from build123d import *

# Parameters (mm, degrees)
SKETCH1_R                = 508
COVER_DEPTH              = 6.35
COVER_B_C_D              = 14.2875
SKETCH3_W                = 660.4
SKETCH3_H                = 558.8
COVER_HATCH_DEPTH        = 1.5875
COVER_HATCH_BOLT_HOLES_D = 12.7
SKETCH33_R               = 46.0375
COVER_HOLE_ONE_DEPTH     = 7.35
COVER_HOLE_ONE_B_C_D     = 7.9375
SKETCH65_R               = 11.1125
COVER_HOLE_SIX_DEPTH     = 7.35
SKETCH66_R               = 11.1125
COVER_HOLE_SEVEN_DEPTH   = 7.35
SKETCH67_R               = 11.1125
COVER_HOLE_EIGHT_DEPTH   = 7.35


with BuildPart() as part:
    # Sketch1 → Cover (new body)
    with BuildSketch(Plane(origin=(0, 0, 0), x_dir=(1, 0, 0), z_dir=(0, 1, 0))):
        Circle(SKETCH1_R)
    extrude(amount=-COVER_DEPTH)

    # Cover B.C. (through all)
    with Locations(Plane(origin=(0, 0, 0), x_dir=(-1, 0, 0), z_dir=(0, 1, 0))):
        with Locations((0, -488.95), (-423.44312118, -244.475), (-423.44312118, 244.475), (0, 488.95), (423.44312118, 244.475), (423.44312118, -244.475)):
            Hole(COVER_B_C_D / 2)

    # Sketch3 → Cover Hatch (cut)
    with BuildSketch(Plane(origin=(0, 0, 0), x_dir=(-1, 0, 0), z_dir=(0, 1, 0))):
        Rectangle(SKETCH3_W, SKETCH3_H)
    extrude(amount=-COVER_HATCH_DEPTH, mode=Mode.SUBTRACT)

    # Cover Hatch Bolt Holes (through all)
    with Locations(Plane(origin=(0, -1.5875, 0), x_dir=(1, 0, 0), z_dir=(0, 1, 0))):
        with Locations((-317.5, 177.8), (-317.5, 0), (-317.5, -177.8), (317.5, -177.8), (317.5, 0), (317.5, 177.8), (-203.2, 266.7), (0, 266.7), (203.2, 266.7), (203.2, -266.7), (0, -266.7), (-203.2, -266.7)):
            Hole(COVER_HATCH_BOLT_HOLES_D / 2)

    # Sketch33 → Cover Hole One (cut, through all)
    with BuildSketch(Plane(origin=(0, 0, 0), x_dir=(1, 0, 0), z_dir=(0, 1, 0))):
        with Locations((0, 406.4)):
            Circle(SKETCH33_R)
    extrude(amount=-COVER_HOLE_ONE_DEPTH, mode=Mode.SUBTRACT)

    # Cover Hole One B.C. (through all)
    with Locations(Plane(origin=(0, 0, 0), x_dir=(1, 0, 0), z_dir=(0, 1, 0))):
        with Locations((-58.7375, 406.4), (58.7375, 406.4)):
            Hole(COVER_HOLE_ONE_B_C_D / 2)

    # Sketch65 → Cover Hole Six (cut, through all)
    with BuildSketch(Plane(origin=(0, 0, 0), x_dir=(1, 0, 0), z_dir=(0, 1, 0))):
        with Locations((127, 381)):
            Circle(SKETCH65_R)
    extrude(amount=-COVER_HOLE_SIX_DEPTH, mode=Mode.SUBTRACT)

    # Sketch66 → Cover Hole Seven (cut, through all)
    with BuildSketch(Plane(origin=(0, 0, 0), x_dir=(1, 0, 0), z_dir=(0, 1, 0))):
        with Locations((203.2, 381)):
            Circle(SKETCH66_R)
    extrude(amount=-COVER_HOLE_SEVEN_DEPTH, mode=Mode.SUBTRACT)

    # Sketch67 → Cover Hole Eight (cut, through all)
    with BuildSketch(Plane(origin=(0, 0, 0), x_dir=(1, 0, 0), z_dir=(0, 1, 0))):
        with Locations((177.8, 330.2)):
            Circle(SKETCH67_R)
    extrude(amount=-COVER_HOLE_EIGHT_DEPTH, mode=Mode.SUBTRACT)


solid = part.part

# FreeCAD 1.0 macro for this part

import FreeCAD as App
import Part
import Sketcher

V = App.Vector
Q = App.Units.Quantity

doc = App.newDocument("Part")
body = doc.addObject("PartDesign::Body", "Body")

# Sketch on XZ plane
sketch1 = body.newObject("Sketcher::SketchObject", "Sketch")
sketch1.AttachmentSupport = (doc.getObject("XZ_Plane"), [""])
sketch1.MapMode = "FlatFace"
sketch1.addGeometry(Part.Circle(V(0, 0, 0), V(0, 0, 1), 508), False)
sketch1.addConstraint(Sketcher.Constraint("Coincident", 0, 3, -1, 1))
sketch1.addConstraint(Sketcher.Constraint("Diameter", 0, Q("40 in")))
pad1 = body.newObject("PartDesign::Pad", "Pad")
pad1.Profile = sketch1
pad1.Length = Q("0.25 in")

# Sketch on XZ plane
sketch2 = body.newObject("Sketcher::SketchObject", "Sketch001")
sketch2.AttachmentSupport = (doc.getObject("XZ_Plane"), [""])
sketch2.MapMode = "FlatFace"
sketch2.addGeometry(Part.Circle(V(0, -489, 0), V(0, 0, 1), 7), False)
sketch2.addGeometry(Part.Circle(V(423, -244, 0), V(0, 0, 1), 7), False)
sketch2.addGeometry(Part.Circle(V(423, 244, 0), V(0, 0, 1), 7), False)
sketch2.addGeometry(Part.Circle(V(0, 489, 0), V(0, 0, 1), 7), False)
sketch2.addGeometry(Part.Circle(V(-423, 244, 0), V(0, 0, 1), 7), False)
sketch2.addGeometry(Part.Circle(V(-423, -244, 0), V(0, 0, 1), 7), False)
sketch2.addConstraint(Sketcher.Constraint("Equal", 0, 1))
sketch2.addConstraint(Sketcher.Constraint("Equal", 1, 2))
sketch2.addConstraint(Sketcher.Constraint("Equal", 2, 3))
sketch2.addConstraint(Sketcher.Constraint("Equal", 3, 4))
sketch2.addConstraint(Sketcher.Constraint("Equal", 4, 5))
sketch2.addConstraint(Sketcher.Constraint("Symmetric", 0, 3, 3, 3, -1, 1))
sketch2.addConstraint(Sketcher.Constraint("Symmetric", 1, 3, 4, 3, -1, 1))
sketch2.addConstraint(Sketcher.Constraint("Symmetric", 2, 3, 5, 3, -1, 1))
sketch2.addConstraint(Sketcher.Constraint("Symmetric", 2, 3, 4, 3, -2))
sketch2.addConstraint(Sketcher.Constraint("PointOnObject", 0, 3, -2))
sketch2.addConstraint(Sketcher.Constraint("Diameter", 0, Q("0.5625 in")))
sketch2.addConstraint(Sketcher.Constraint("DistanceY", 0, 3, 3, 3, Q("38.5 in")))
sketch2.addConstraint(Sketcher.Constraint("DistanceY", 1, 3, 2, 3, Q("19.25 in")))
sketch2.addConstraint(Sketcher.Constraint("DistanceX", -1, 1, 1, 3, Q("423.443121 mm")))
doc.recompute()
hole = body.newObject("PartDesign::Hole", "Hole")
hole.Profile = sketch2
hole.ThreadType = "None"
hole.Diameter = Q("0.5625 in")
hole.DepthType = "ThroughAll"
hole.Reversed = True

# Sketch on XZ plane
sketch3 = body.newObject("Sketcher::SketchObject", "Sketch002")
sketch3.AttachmentSupport = (doc.getObject("XZ_Plane"), [""])
sketch3.MapMode = "FlatFace"
sketch3.addGeometry(Part.LineSegment(V(330, 279, 0), V(330, -279, 0)), False)
sketch3.addGeometry(Part.LineSegment(V(330, -279, 0), V(-330, -279, 0)), False)
sketch3.addGeometry(Part.LineSegment(V(-330, -279, 0), V(-330, 279, 0)), False)
sketch3.addGeometry(Part.LineSegment(V(-330, 279, 0), V(330, 279, 0)), False)
sketch3.addConstraint(Sketcher.Constraint("Coincident", 0, 2, 1, 1))
sketch3.addConstraint(Sketcher.Constraint("Coincident", 1, 2, 2, 1))
sketch3.addConstraint(Sketcher.Constraint("Coincident", 2, 2, 3, 1))
sketch3.addConstraint(Sketcher.Constraint("Coincident", 3, 2, 0, 1))
sketch3.addConstraint(Sketcher.Constraint("Vertical", 0))
sketch3.addConstraint(Sketcher.Constraint("Horizontal", 1))
sketch3.addConstraint(Sketcher.Constraint("Vertical", 2))
sketch3.addConstraint(Sketcher.Constraint("Horizontal", 3))
sketch3.addConstraint(Sketcher.Constraint("Symmetric", 0, 2, 2, 2, -1, 1))
sketch3.addConstraint(Sketcher.Constraint("DistanceX", 1, 2, 1, 1, Q("26 in")))
sketch3.addConstraint(Sketcher.Constraint("DistanceY", 0, 2, 0, 1, Q("22 in")))
pocket1 = body.newObject("PartDesign::Pocket", "Pocket")
pocket1.Profile = sketch3
pocket1.Length = Q("0.0625 in")
pocket1.Reversed = True

# Sketch on XZ plane
sketch4 = body.newObject("Sketcher::SketchObject", "Sketch003")
sketch4.AttachmentSupport = (doc.getObject("XZ_Plane"), [""])
sketch4.MapMode = "FlatFace"
sketch4.AttachmentOffset = App.Placement(V(0, 0, 0.0625 * 25.4), App.Rotation())
sketch4.addGeometry(Part.Circle(V(-318, -178, 0), V(0, 0, 1), 6), False)
sketch4.addGeometry(Part.Circle(V(-318, 0, 0), V(0, 0, 1), 6), False)
sketch4.addGeometry(Part.Circle(V(-318, 178, 0), V(0, 0, 1), 6), False)
sketch4.addGeometry(Part.Circle(V(318, 178, 0), V(0, 0, 1), 6), False)
sketch4.addGeometry(Part.Circle(V(318, 0, 0), V(0, 0, 1), 6), False)
sketch4.addGeometry(Part.Circle(V(318, -178, 0), V(0, 0, 1), 6), False)
sketch4.addGeometry(Part.Circle(V(-203, -267, 0), V(0, 0, 1), 6), False)
sketch4.addGeometry(Part.Circle(V(0, -267, 0), V(0, 0, 1), 6), False)
sketch4.addGeometry(Part.Circle(V(203, -267, 0), V(0, 0, 1), 6), False)
sketch4.addGeometry(Part.Circle(V(203, 267, 0), V(0, 0, 1), 6), False)
sketch4.addGeometry(Part.Circle(V(0, 267, 0), V(0, 0, 1), 6), False)
sketch4.addGeometry(Part.Circle(V(-203, 267, 0), V(0, 0, 1), 6), False)
sketch4.addConstraint(Sketcher.Constraint("Equal", 0, 1))
sketch4.addConstraint(Sketcher.Constraint("Equal", 1, 2))
sketch4.addConstraint(Sketcher.Constraint("Equal", 2, 3))
sketch4.addConstraint(Sketcher.Constraint("Equal", 3, 4))
sketch4.addConstraint(Sketcher.Constraint("Equal", 4, 5))
sketch4.addConstraint(Sketcher.Constraint("Equal", 5, 6))
sketch4.addConstraint(Sketcher.Constraint("Equal", 6, 7))
sketch4.addConstraint(Sketcher.Constraint("Equal", 7, 8))
sketch4.addConstraint(Sketcher.Constraint("Equal", 8, 9))
sketch4.addConstraint(Sketcher.Constraint("Equal", 9, 10))
sketch4.addConstraint(Sketcher.Constraint("Equal", 10, 11))
sketch4.addConstraint(Sketcher.Constraint("Symmetric", 0, 3, 3, 3, -1, 1))
sketch4.addConstraint(Sketcher.Constraint("Symmetric", 1, 3, 4, 3, -1, 1))
sketch4.addConstraint(Sketcher.Constraint("Symmetric", 2, 3, 5, 3, -1, 1))
sketch4.addConstraint(Sketcher.Constraint("Symmetric", 6, 3, 9, 3, -1, 1))
sketch4.addConstraint(Sketcher.Constraint("Symmetric", 7, 3, 10, 3, -1, 1))
sketch4.addConstraint(Sketcher.Constraint("Symmetric", 8, 3, 11, 3, -1, 1))
sketch4.addConstraint(Sketcher.Constraint("Symmetric", 2, 3, 3, 3, -2))
sketch4.addConstraint(Sketcher.Constraint("Symmetric", 6, 3, 8, 3, -2))
sketch4.addConstraint(Sketcher.Constraint("PointOnObject", 1, 3, -1))
sketch4.addConstraint(Sketcher.Constraint("PointOnObject", 7, 3, -2))
sketch4.addConstraint(Sketcher.Constraint("Horizontal", 6, 3, 7, 3))
sketch4.addConstraint(Sketcher.Constraint("Vertical", 0, 3, 1, 3))
sketch4.addConstraint(Sketcher.Constraint("Diameter", 0, Q("0.5 in")))
sketch4.addConstraint(Sketcher.Constraint("DistanceY", 0, 3, -1, 1, Q("7 in")))
sketch4.addConstraint(Sketcher.Constraint("DistanceX", 6, 3, -1, 1, Q("8 in")))
sketch4.addConstraint(Sketcher.Constraint("DistanceX", 2, 3, 3, 3, Q("25 in")))
sketch4.addConstraint(Sketcher.Constraint("DistanceY", 8, 3, 9, 3, Q("21 in")))
doc.recompute()
hole2 = body.newObject("PartDesign::Hole", "Hole001")
hole2.Profile = sketch4
hole2.ThreadType = "None"
hole2.Diameter = Q("0.5 in")
hole2.DepthType = "ThroughAll"
hole2.Reversed = True

# Sketch on XZ plane
sketch5 = body.newObject("Sketcher::SketchObject", "Sketch004")
sketch5.AttachmentSupport = (doc.getObject("XZ_Plane"), [""])
sketch5.MapMode = "FlatFace"
sketch5.addGeometry(Part.Circle(V(0, -406, 0), V(0, 0, 1), 46), False)
sketch5.addConstraint(Sketcher.Constraint("PointOnObject", 0, 3, -2))
sketch5.addConstraint(Sketcher.Constraint("Diameter", 0, Q("3.625 in")))
sketch5.addConstraint(Sketcher.Constraint("DistanceY", 0, 3, -1, 1, Q("16 in")))
pocket2 = body.newObject("PartDesign::Pocket", "Pocket001")
pocket2.Profile = sketch5
pocket2.Type = "ThroughAll"
pocket2.Reversed = True

# Sketch on XZ plane
sketch6 = body.newObject("Sketcher::SketchObject", "Sketch005")
sketch6.AttachmentSupport = (doc.getObject("XZ_Plane"), [""])
sketch6.MapMode = "FlatFace"
sketch6.addGeometry(Part.Circle(V(-58.7, -406.4, 0), V(0, 0, 1), 4), False)
sketch6.addGeometry(Part.Circle(V(58.7, -406.4, 0), V(0, 0, 1), 4), False)
sketch6.addConstraint(Sketcher.Constraint("Equal", 0, 1))
sketch6.addConstraint(Sketcher.Constraint("Symmetric", 0, 3, 1, 3, -2))
sketch6.addConstraint(Sketcher.Constraint("Diameter", 0, Q("0.3125 in")))
sketch6.addConstraint(Sketcher.Constraint("DistanceY", 0, 3, -1, 1, Q("16 in")))
sketch6.addConstraint(Sketcher.Constraint("DistanceX", 0, 3, -1, 1, Q("2.3125 in")))
doc.recompute()
hole3 = body.newObject("PartDesign::Hole", "Hole002")
hole3.Profile = sketch6
hole3.ThreadType = "None"
hole3.Diameter = Q("0.3125 in")
hole3.DepthType = "ThroughAll"
hole3.Reversed = True

# Sketch on XZ plane
sketch7 = body.newObject("Sketcher::SketchObject", "Sketch006")
sketch7.AttachmentSupport = (doc.getObject("XZ_Plane"), [""])
sketch7.MapMode = "FlatFace"
sketch7.addGeometry(Part.Circle(V(127, -381, 0), V(0, 0, 1), 11), False)
sketch7.addConstraint(Sketcher.Constraint("Diameter", 0, Q("0.875 in")))
sketch7.addConstraint(Sketcher.Constraint("DistanceX", -1, 1, 0, 3, Q("5 in")))
sketch7.addConstraint(Sketcher.Constraint("DistanceY", 0, 3, -1, 1, Q("15 in")))
pocket3 = body.newObject("PartDesign::Pocket", "Pocket002")
pocket3.Profile = sketch7
pocket3.Type = "ThroughAll"
pocket3.Reversed = True

# Sketch on XZ plane
sketch8 = body.newObject("Sketcher::SketchObject", "Sketch007")
sketch8.AttachmentSupport = (doc.getObject("XZ_Plane"), [""])
sketch8.MapMode = "FlatFace"
sketch8.addGeometry(Part.Circle(V(203, -381, 0), V(0, 0, 1), 11), False)
sketch8.addConstraint(Sketcher.Constraint("Diameter", 0, Q("0.875 in")))
sketch8.addConstraint(Sketcher.Constraint("DistanceX", -1, 1, 0, 3, Q("8 in")))
sketch8.addConstraint(Sketcher.Constraint("DistanceY", 0, 3, -1, 1, Q("15 in")))
pocket4 = body.newObject("PartDesign::Pocket", "Pocket003")
pocket4.Profile = sketch8
pocket4.Type = "ThroughAll"
pocket4.Reversed = True

# Sketch on XZ plane
sketch9 = body.newObject("Sketcher::SketchObject", "Sketch008")
sketch9.AttachmentSupport = (doc.getObject("XZ_Plane"), [""])
sketch9.MapMode = "FlatFace"
sketch9.addGeometry(Part.Circle(V(178, -330, 0), V(0, 0, 1), 11), False)
sketch9.addConstraint(Sketcher.Constraint("Diameter", 0, Q("0.875 in")))
sketch9.addConstraint(Sketcher.Constraint("DistanceX", -1, 1, 0, 3, Q("7 in")))
sketch9.addConstraint(Sketcher.Constraint("DistanceY", 0, 3, -1, 1, Q("13 in")))
pocket5 = body.newObject("PartDesign::Pocket", "Pocket004")
pocket5.Profile = sketch9
pocket5.Type = "ThroughAll"
pocket5.Reversed = True

doc.recompute()
